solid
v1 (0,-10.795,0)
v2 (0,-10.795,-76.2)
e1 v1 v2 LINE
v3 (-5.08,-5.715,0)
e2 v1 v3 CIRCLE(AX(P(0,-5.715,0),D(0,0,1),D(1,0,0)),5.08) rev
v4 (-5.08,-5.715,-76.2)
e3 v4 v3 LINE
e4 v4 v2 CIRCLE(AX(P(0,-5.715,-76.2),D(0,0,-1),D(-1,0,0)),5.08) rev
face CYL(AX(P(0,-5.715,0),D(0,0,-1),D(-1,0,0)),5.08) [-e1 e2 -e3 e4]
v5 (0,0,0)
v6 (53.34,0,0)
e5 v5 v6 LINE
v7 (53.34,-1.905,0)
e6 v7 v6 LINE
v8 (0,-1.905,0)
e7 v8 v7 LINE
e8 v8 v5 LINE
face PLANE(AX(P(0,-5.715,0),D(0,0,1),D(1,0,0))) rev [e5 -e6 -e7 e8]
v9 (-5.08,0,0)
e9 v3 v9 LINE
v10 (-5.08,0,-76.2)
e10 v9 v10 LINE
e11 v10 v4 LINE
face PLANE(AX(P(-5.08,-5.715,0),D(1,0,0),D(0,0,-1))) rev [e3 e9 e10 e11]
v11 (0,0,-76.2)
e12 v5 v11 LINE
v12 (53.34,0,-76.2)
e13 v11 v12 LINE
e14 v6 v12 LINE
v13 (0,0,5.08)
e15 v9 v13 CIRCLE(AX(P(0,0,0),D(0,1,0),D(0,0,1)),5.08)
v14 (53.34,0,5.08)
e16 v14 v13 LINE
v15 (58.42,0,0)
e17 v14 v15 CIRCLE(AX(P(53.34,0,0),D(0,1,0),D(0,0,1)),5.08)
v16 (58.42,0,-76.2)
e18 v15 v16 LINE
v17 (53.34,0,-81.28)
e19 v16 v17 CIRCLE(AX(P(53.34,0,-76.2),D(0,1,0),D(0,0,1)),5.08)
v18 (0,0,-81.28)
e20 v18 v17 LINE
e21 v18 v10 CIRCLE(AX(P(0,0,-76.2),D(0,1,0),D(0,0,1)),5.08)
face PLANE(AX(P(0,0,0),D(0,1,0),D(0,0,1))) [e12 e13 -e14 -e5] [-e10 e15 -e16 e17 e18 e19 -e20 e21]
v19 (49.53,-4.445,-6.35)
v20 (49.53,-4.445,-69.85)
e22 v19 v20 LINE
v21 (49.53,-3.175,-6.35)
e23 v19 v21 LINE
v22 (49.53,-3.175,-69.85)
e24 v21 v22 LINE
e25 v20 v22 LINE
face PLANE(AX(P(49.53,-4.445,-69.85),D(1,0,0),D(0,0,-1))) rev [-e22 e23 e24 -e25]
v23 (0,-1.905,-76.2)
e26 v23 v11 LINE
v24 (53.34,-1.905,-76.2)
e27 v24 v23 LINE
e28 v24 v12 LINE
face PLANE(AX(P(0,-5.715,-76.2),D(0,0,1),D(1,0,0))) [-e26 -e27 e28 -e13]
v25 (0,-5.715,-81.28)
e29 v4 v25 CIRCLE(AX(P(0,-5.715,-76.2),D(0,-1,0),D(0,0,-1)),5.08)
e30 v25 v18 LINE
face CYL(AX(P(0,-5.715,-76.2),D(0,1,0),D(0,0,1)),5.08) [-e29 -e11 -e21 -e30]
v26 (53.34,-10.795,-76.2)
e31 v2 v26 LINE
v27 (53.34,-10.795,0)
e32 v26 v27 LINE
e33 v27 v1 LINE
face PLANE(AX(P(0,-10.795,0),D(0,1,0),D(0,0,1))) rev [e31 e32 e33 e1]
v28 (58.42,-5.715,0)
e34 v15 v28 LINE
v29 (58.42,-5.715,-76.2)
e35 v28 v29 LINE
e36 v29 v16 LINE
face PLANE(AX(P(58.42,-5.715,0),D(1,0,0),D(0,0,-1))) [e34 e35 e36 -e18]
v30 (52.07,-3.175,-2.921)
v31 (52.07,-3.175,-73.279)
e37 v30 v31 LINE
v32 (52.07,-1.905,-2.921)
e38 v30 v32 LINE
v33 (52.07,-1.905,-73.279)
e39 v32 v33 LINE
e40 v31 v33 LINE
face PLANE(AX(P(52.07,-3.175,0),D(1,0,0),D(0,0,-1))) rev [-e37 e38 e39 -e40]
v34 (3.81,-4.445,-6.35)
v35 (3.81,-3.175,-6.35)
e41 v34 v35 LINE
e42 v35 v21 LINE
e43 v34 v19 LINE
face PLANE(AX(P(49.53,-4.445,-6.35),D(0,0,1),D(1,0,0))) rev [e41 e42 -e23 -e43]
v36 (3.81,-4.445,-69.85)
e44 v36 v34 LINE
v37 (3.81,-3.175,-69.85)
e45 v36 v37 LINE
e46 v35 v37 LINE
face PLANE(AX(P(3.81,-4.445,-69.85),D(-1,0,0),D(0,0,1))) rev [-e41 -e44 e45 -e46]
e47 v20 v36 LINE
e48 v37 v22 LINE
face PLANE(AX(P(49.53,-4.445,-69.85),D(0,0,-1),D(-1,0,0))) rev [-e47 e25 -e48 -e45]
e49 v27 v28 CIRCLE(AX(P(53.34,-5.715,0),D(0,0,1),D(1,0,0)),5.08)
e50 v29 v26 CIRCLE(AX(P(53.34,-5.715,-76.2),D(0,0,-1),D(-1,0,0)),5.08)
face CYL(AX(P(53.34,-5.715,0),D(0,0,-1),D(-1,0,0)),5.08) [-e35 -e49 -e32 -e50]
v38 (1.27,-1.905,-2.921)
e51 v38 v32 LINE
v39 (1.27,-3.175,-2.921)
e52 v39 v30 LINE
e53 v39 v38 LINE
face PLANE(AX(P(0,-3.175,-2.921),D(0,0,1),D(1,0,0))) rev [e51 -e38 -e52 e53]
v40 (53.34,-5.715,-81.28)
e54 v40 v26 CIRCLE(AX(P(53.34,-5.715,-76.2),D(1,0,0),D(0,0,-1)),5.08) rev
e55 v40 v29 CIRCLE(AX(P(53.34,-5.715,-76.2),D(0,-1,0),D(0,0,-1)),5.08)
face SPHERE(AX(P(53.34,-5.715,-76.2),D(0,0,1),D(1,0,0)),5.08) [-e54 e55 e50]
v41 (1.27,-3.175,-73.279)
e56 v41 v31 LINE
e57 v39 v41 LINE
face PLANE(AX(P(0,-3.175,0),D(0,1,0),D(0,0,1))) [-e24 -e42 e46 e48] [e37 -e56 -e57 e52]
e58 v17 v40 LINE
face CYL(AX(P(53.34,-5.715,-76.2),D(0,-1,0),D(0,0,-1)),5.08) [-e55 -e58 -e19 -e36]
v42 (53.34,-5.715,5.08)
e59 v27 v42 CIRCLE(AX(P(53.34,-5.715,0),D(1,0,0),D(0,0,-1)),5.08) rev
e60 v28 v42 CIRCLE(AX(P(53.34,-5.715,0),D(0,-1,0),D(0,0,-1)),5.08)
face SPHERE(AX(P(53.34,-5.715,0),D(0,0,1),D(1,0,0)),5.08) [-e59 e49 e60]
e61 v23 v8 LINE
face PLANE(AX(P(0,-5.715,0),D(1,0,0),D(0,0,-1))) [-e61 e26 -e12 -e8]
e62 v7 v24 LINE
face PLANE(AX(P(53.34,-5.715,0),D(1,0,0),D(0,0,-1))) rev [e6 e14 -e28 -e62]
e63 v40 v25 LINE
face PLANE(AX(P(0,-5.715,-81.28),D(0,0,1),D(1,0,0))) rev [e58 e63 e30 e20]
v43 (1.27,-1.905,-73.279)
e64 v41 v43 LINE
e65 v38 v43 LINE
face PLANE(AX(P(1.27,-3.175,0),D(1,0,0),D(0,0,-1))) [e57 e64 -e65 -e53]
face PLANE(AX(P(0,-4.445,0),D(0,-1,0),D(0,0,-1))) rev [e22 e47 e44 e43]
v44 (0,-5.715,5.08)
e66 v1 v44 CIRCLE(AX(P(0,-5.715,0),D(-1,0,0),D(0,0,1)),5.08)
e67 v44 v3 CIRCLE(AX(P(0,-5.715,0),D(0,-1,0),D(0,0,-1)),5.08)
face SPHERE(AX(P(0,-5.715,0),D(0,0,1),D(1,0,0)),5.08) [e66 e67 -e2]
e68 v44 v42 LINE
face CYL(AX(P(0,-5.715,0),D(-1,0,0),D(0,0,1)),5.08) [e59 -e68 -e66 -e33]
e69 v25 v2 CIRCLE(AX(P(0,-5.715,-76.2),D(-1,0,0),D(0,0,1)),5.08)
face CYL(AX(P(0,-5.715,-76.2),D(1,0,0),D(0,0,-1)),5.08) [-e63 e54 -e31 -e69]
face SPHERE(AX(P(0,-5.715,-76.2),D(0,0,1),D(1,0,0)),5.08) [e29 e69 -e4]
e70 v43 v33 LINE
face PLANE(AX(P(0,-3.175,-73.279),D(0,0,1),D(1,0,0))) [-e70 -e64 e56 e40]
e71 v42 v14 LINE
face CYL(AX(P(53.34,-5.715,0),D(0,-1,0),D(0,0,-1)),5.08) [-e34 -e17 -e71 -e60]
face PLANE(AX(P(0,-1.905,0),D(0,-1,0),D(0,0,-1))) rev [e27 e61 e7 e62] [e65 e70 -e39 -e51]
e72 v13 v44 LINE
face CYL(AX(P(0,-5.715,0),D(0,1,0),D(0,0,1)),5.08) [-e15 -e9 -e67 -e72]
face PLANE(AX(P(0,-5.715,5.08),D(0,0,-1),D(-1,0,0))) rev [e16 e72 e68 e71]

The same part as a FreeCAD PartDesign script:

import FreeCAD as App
import Part
import Sketcher
Q = App.Units.Quantity


def edges_at(feature, points):
    """Names of the edges that pass closest to the given points."""
    edges = feature.Shape.Edges
    near = lambda p: min(range(len(edges)), key=lambda i: edges[i].distToShape(Part.Vertex(*p))[0])
    return sorted({f"Edge{near(p) + 1}" for p in points})

doc = App.newDocument("Part")
body = doc.addObject("PartDesign::Body", "Body")

sketch1 = body.newObject("Sketcher::SketchObject", "Sketch")
sketch1.AttachmentSupport = (doc.getObject("XZ_Plane"), [""])
sketch1.MapMode = "FlatFace"
sketch1.addGeometry([
    Part.LineSegment(App.Vector(58, 5, 0), App.Vector(58, -81, 0)),
    Part.LineSegment(App.Vector(58, -81, 0), App.Vector(-5, -81, 0)),
    Part.LineSegment(App.Vector(-5, -81, 0), App.Vector(-5, 5, 0)),
    Part.LineSegment(App.Vector(-5, 5, 0), App.Vector(58, 5, 0)),
    Part.LineSegment(App.Vector(0, -76, 0), App.Vector(53, -76, 0)),
    Part.LineSegment(App.Vector(53, -76, 0), App.Vector(53, 0, 0)),
    Part.LineSegment(App.Vector(53, 0, 0), App.Vector(0, 0, 0)),
    Part.LineSegment(App.Vector(0, 0, 0), App.Vector(0, -76, 0)),
], False)
sketch1.addConstraint([
    Sketcher.Constraint("Coincident", 0, 2, 1, 1),
    Sketcher.Constraint("Coincident", 1, 2, 2, 1),
    Sketcher.Constraint("Coincident", 2, 2, 3, 1),
    Sketcher.Constraint("Coincident", 3, 2, 0, 1),
    Sketcher.Constraint("Coincident", 4, 2, 5, 1),
    Sketcher.Constraint("Coincident", 5, 2, 6, 1),
    Sketcher.Constraint("Coincident", 6, 2, 7, 1),
    Sketcher.Constraint("Coincident", 7, 2, 4, 1),
    Sketcher.Constraint("Vertical", 0),
    Sketcher.Constraint("Horizontal", 1),
    Sketcher.Constraint("Vertical", 2),
    Sketcher.Constraint("Horizontal", 3),
    Sketcher.Constraint("Horizontal", 4),
    Sketcher.Constraint("Vertical", 5),
    Sketcher.Constraint("Horizontal", 6),
    Sketcher.Constraint("Vertical", 7),
    Sketcher.Constraint("Coincident", 6, 2, -1, 1),
    Sketcher.Constraint("DistanceY", 5, 1, 5, 2, Q("3 in")),
    Sketcher.Constraint("DistanceX", 1, 2, 1, 1, Q("2.5 in")),
    Sketcher.Constraint("DistanceX", 4, 1, 4, 2, Q("2.1 in")),
    Sketcher.Constraint("DistanceY", 0, 2, 0, 1, Q("3.4 in")),
    Sketcher.Constraint("DistanceX", -1, 1, 0, 2, Q("2.3 in")),
    Sketcher.Constraint("DistanceY", 0, 2, -1, 1, Q("3.2 in")),
])
pad1 = body.newObject("PartDesign::Pad", "Pad")
pad1.Profile = sketch1
pad1.Length = Q("0.225 in")

sketch2 = body.newObject("Sketcher::SketchObject", "Sketch001")
sketch2.AttachmentSupport = (doc.getObject("XZ_Plane"), [""])
sketch2.MapMode = "FlatFace"
sketch2.AttachmentOffset = App.Placement(App.Vector(0, 0, 0.225 * 25.4), App.Rotation())
sketch2.addGeometry([
    Part.LineSegment(App.Vector(58, -81, 0), App.Vector(58, 5, 0)),
    Part.LineSegment(App.Vector(58, 5, 0), App.Vector(-5, 5, 0)),
    Part.LineSegment(App.Vector(-5, 5, 0), App.Vector(-5, -81, 0)),
    Part.LineSegment(App.Vector(-5, -81, 0), App.Vector(58, -81, 0)),
], False)
sketch2.addConstraint([
    Sketcher.Constraint("Coincident", 0, 2, 1, 1),
    Sketcher.Constraint("Coincident", 1, 2, 2, 1),
    Sketcher.Constraint("Coincident", 2, 2, 3, 1),
    Sketcher.Constraint("Coincident", 3, 2, 0, 1),
    Sketcher.Constraint("Vertical", 0),
    Sketcher.Constraint("Horizontal", 1),
    Sketcher.Constraint("Vertical", 2),
    Sketcher.Constraint("Horizontal", 3),
    Sketcher.Constraint("DistanceX", 1, 2, 1, 1, Q("2.5 in")),
    Sketcher.Constraint("DistanceY", 0, 1, 0, 2, Q("3.4 in")),
    Sketcher.Constraint("DistanceX", -1, 1, 0, 2, Q("2.3 in")),
    Sketcher.Constraint("DistanceY", -1, 1, 0, 2, Q("0.2 in")),
])
pad2 = body.newObject("PartDesign::Pad", "Pad001")
pad2.Profile = sketch2
pad2.Length = Q("0.2 in")
doc.recompute()

fillet = body.newObject("PartDesign::Fillet", "Fillet")
fillet.Base = (pad2, edges_at(pad2, [
    (-5.08, -5.397, 5.08),
    (-5.08, -5.397, -81.28),
    (58.42, -5.397, -81.28),
    (58.42, -5.397, 5.08),
    (-5.08, -10.795, -38.1),
    (26.67, -10.795, -81.28),
    (58.42, -10.795, -38.1),
    (26.67, -10.795, 5.08),
]))
fillet.Radius = Q("0.2 in")

sketch3 = body.newObject("Sketcher::SketchObject", "Sketch002")
sketch3.AttachmentSupport = (doc.getObject("XZ_Plane"), [""])
sketch3.MapMode = "FlatFace"
sketch3.AttachmentOffset = App.Placement(App.Vector(0, 0, 0.225 * 25.4), App.Rotation())
sketch3.addGeometry([
    Part.LineSegment(App.Vector(0, -76, 0), App.Vector(0, 0, 0)),
    Part.LineSegment(App.Vector(0, 0, 0), App.Vector(53, 0, 0)),
    Part.LineSegment(App.Vector(53, 0, 0), App.Vector(53, -76, 0)),
    Part.LineSegment(App.Vector(53, -76, 0), App.Vector(0, -76, 0)),
], False)
sketch3.addConstraint([
    Sketcher.Constraint("Coincident", 0, 2, 1, 1),
    Sketcher.Constraint("Coincident", 1, 2, 2, 1),
    Sketcher.Constraint("Coincident", 2, 2, 3, 1),
    Sketcher.Constraint("Coincident", 3, 2, 0, 1),
    Sketcher.Constraint("Vertical", 0),
    Sketcher.Constraint("Horizontal", 1),
    Sketcher.Constraint("Vertical", 2),
    Sketcher.Constraint("Horizontal", 3),
    Sketcher.Constraint("Coincident", 0, 2, -1, 1),
    Sketcher.Constraint("DistanceY", 0, 1, 0, 2, Q("3 in")),
    Sketcher.Constraint("DistanceX", 1, 1, 1, 2, Q("2.1 in")),
])
pad3 = body.newObject("PartDesign::Pad", "Pad002")
pad3.Profile = sketch3
pad3.Length = Q("0.15 in")
pad3.Reversed = True

sketch4 = body.newObject("Sketcher::SketchObject", "Sketch003")
sketch4.AttachmentSupport = (doc.getObject("XZ_Plane"), [""])
sketch4.MapMode = "FlatFace"
sketch4.AttachmentOffset = App.Placement(App.Vector(0, 0, 0.075 * 25.4), App.Rotation())
sketch4.addGeometry([
    Part.LineSegment(App.Vector(52, -3, 0), App.Vector(52, -73, 0)),
    Part.LineSegment(App.Vector(52, -73, 0), App.Vector(1, -73, 0)),
    Part.LineSegment(App.Vector(1, -73, 0), App.Vector(1, -3, 0)),
    Part.LineSegment(App.Vector(1, -3, 0), App.Vector(52, -3, 0)),
    Part.LineSegment(App.Vector(50, -70, 0), App.Vector(50, -6, 0)),
    Part.LineSegment(App.Vector(50, -6, 0), App.Vector(4, -6, 0)),
    Part.LineSegment(App.Vector(4, -6, 0), App.Vector(4, -70, 0)),
    Part.LineSegment(App.Vector(4, -70, 0), App.Vector(50, -70, 0)),
], False)
sketch4.addConstraint([
    Sketcher.Constraint("Coincident", 0, 2, 1, 1),
    Sketcher.Constraint("Coincident", 1, 2, 2, 1),
    Sketcher.Constraint("Coincident", 2, 2, 3, 1),
    Sketcher.Constraint("Coincident", 3, 2, 0, 1),
    Sketcher.Constraint("Coincident", 4, 2, 5, 1),
    Sketcher.Constraint("Coincident", 5, 2, 6, 1),
    Sketcher.Constraint("Coincident", 6, 2, 7, 1),
    Sketcher.Constraint("Coincident", 7, 2, 4, 1),
    Sketcher.Constraint("Vertical", 0),
    Sketcher.Constraint("Horizontal", 1),
    Sketcher.Constraint("Vertical", 2),
    Sketcher.Constraint("Horizontal", 3),
    Sketcher.Constraint("Vertical", 4),
    Sketcher.Constraint("Horizontal", 5),
    Sketcher.Constraint("Vertical", 6),
    Sketcher.Constraint("Horizontal", 7),
    Sketcher.Constraint("DistanceX", 1, 2, 1, 1, Q("2 in")),
    Sketcher.Constraint("DistanceX", 5, 2, 5, 1, Q("1.8 in")),
    Sketcher.Constraint("DistanceY", 4, 1, 4, 2, Q("2.5 in")),
    Sketcher.Constraint("DistanceY", 0, 2, 0, 1, Q("2.77 in")),
    Sketcher.Constraint("DistanceX", 4, 2, 3, 2, Q("0.1 in")),
    Sketcher.Constraint("DistanceX", -1, 1, 0, 2, Q("2.05 in")),
    Sketcher.Constraint("DistanceY", 4, 2, -1, 1, Q("0.25 in")),
    Sketcher.Constraint("DistanceY", 0, 2, -1, 1, Q("2.885 in")),
])
pocket1 = body.newObject("PartDesign::Pocket", "Pocket")
pocket1.Profile = sketch4
pocket1.Length = Q("0.05 in")
pocket1.Reversed = True

sketch5 = body.newObject("Sketcher::SketchObject", "Sketch004")
sketch5.AttachmentSupport = (doc.getObject("XZ_Plane"), [""])
sketch5.MapMode = "FlatFace"
sketch5.AttachmentOffset = App.Placement(App.Vector(0, 0, 0.075 * 25.4), App.Rotation())
sketch5.addGeometry([
    Part.LineSegment(App.Vector(4, -70, 0), App.Vector(4, -6, 0)),
    Part.LineSegment(App.Vector(4, -6, 0), App.Vector(50, -6, 0)),
    Part.LineSegment(App.Vector(50, -6, 0), App.Vector(50, -70, 0)),
    Part.LineSegment(App.Vector(50, -70, 0), App.Vector(4, -70, 0)),
], False)
sketch5.addConstraint([
    Sketcher.Constraint("Coincident", 0, 2, 1, 1),
    Sketcher.Constraint("Coincident", 1, 2, 2, 1),
    Sketcher.Constraint("Coincident", 2, 2, 3, 1),
    Sketcher.Constraint("Coincident", 3, 2, 0, 1),
    Sketcher.Constraint("Vertical", 0),
    Sketcher.Constraint("Horizontal", 1),
    Sketcher.Constraint("Vertical", 2),
    Sketcher.Constraint("Horizontal", 3),
    Sketcher.Constraint("DistanceX", 1, 1, 1, 2, Q("1.8 in")),
    Sketcher.Constraint("DistanceY", 0, 1, 0, 2, Q("2.5 in")),
    Sketcher.Constraint("DistanceX", -1, 1, 0, 2, Q("0.15 in")),
    Sketcher.Constraint("DistanceY", 0, 2, -1, 1, Q("0.25 in")),
])
pocket2 = body.newObject("PartDesign::Pocket", "Pocket001")
pocket2.Profile = sketch5
pocket2.Length = Q("0.1 in")
pocket2.Reversed = True

doc.recompute()
